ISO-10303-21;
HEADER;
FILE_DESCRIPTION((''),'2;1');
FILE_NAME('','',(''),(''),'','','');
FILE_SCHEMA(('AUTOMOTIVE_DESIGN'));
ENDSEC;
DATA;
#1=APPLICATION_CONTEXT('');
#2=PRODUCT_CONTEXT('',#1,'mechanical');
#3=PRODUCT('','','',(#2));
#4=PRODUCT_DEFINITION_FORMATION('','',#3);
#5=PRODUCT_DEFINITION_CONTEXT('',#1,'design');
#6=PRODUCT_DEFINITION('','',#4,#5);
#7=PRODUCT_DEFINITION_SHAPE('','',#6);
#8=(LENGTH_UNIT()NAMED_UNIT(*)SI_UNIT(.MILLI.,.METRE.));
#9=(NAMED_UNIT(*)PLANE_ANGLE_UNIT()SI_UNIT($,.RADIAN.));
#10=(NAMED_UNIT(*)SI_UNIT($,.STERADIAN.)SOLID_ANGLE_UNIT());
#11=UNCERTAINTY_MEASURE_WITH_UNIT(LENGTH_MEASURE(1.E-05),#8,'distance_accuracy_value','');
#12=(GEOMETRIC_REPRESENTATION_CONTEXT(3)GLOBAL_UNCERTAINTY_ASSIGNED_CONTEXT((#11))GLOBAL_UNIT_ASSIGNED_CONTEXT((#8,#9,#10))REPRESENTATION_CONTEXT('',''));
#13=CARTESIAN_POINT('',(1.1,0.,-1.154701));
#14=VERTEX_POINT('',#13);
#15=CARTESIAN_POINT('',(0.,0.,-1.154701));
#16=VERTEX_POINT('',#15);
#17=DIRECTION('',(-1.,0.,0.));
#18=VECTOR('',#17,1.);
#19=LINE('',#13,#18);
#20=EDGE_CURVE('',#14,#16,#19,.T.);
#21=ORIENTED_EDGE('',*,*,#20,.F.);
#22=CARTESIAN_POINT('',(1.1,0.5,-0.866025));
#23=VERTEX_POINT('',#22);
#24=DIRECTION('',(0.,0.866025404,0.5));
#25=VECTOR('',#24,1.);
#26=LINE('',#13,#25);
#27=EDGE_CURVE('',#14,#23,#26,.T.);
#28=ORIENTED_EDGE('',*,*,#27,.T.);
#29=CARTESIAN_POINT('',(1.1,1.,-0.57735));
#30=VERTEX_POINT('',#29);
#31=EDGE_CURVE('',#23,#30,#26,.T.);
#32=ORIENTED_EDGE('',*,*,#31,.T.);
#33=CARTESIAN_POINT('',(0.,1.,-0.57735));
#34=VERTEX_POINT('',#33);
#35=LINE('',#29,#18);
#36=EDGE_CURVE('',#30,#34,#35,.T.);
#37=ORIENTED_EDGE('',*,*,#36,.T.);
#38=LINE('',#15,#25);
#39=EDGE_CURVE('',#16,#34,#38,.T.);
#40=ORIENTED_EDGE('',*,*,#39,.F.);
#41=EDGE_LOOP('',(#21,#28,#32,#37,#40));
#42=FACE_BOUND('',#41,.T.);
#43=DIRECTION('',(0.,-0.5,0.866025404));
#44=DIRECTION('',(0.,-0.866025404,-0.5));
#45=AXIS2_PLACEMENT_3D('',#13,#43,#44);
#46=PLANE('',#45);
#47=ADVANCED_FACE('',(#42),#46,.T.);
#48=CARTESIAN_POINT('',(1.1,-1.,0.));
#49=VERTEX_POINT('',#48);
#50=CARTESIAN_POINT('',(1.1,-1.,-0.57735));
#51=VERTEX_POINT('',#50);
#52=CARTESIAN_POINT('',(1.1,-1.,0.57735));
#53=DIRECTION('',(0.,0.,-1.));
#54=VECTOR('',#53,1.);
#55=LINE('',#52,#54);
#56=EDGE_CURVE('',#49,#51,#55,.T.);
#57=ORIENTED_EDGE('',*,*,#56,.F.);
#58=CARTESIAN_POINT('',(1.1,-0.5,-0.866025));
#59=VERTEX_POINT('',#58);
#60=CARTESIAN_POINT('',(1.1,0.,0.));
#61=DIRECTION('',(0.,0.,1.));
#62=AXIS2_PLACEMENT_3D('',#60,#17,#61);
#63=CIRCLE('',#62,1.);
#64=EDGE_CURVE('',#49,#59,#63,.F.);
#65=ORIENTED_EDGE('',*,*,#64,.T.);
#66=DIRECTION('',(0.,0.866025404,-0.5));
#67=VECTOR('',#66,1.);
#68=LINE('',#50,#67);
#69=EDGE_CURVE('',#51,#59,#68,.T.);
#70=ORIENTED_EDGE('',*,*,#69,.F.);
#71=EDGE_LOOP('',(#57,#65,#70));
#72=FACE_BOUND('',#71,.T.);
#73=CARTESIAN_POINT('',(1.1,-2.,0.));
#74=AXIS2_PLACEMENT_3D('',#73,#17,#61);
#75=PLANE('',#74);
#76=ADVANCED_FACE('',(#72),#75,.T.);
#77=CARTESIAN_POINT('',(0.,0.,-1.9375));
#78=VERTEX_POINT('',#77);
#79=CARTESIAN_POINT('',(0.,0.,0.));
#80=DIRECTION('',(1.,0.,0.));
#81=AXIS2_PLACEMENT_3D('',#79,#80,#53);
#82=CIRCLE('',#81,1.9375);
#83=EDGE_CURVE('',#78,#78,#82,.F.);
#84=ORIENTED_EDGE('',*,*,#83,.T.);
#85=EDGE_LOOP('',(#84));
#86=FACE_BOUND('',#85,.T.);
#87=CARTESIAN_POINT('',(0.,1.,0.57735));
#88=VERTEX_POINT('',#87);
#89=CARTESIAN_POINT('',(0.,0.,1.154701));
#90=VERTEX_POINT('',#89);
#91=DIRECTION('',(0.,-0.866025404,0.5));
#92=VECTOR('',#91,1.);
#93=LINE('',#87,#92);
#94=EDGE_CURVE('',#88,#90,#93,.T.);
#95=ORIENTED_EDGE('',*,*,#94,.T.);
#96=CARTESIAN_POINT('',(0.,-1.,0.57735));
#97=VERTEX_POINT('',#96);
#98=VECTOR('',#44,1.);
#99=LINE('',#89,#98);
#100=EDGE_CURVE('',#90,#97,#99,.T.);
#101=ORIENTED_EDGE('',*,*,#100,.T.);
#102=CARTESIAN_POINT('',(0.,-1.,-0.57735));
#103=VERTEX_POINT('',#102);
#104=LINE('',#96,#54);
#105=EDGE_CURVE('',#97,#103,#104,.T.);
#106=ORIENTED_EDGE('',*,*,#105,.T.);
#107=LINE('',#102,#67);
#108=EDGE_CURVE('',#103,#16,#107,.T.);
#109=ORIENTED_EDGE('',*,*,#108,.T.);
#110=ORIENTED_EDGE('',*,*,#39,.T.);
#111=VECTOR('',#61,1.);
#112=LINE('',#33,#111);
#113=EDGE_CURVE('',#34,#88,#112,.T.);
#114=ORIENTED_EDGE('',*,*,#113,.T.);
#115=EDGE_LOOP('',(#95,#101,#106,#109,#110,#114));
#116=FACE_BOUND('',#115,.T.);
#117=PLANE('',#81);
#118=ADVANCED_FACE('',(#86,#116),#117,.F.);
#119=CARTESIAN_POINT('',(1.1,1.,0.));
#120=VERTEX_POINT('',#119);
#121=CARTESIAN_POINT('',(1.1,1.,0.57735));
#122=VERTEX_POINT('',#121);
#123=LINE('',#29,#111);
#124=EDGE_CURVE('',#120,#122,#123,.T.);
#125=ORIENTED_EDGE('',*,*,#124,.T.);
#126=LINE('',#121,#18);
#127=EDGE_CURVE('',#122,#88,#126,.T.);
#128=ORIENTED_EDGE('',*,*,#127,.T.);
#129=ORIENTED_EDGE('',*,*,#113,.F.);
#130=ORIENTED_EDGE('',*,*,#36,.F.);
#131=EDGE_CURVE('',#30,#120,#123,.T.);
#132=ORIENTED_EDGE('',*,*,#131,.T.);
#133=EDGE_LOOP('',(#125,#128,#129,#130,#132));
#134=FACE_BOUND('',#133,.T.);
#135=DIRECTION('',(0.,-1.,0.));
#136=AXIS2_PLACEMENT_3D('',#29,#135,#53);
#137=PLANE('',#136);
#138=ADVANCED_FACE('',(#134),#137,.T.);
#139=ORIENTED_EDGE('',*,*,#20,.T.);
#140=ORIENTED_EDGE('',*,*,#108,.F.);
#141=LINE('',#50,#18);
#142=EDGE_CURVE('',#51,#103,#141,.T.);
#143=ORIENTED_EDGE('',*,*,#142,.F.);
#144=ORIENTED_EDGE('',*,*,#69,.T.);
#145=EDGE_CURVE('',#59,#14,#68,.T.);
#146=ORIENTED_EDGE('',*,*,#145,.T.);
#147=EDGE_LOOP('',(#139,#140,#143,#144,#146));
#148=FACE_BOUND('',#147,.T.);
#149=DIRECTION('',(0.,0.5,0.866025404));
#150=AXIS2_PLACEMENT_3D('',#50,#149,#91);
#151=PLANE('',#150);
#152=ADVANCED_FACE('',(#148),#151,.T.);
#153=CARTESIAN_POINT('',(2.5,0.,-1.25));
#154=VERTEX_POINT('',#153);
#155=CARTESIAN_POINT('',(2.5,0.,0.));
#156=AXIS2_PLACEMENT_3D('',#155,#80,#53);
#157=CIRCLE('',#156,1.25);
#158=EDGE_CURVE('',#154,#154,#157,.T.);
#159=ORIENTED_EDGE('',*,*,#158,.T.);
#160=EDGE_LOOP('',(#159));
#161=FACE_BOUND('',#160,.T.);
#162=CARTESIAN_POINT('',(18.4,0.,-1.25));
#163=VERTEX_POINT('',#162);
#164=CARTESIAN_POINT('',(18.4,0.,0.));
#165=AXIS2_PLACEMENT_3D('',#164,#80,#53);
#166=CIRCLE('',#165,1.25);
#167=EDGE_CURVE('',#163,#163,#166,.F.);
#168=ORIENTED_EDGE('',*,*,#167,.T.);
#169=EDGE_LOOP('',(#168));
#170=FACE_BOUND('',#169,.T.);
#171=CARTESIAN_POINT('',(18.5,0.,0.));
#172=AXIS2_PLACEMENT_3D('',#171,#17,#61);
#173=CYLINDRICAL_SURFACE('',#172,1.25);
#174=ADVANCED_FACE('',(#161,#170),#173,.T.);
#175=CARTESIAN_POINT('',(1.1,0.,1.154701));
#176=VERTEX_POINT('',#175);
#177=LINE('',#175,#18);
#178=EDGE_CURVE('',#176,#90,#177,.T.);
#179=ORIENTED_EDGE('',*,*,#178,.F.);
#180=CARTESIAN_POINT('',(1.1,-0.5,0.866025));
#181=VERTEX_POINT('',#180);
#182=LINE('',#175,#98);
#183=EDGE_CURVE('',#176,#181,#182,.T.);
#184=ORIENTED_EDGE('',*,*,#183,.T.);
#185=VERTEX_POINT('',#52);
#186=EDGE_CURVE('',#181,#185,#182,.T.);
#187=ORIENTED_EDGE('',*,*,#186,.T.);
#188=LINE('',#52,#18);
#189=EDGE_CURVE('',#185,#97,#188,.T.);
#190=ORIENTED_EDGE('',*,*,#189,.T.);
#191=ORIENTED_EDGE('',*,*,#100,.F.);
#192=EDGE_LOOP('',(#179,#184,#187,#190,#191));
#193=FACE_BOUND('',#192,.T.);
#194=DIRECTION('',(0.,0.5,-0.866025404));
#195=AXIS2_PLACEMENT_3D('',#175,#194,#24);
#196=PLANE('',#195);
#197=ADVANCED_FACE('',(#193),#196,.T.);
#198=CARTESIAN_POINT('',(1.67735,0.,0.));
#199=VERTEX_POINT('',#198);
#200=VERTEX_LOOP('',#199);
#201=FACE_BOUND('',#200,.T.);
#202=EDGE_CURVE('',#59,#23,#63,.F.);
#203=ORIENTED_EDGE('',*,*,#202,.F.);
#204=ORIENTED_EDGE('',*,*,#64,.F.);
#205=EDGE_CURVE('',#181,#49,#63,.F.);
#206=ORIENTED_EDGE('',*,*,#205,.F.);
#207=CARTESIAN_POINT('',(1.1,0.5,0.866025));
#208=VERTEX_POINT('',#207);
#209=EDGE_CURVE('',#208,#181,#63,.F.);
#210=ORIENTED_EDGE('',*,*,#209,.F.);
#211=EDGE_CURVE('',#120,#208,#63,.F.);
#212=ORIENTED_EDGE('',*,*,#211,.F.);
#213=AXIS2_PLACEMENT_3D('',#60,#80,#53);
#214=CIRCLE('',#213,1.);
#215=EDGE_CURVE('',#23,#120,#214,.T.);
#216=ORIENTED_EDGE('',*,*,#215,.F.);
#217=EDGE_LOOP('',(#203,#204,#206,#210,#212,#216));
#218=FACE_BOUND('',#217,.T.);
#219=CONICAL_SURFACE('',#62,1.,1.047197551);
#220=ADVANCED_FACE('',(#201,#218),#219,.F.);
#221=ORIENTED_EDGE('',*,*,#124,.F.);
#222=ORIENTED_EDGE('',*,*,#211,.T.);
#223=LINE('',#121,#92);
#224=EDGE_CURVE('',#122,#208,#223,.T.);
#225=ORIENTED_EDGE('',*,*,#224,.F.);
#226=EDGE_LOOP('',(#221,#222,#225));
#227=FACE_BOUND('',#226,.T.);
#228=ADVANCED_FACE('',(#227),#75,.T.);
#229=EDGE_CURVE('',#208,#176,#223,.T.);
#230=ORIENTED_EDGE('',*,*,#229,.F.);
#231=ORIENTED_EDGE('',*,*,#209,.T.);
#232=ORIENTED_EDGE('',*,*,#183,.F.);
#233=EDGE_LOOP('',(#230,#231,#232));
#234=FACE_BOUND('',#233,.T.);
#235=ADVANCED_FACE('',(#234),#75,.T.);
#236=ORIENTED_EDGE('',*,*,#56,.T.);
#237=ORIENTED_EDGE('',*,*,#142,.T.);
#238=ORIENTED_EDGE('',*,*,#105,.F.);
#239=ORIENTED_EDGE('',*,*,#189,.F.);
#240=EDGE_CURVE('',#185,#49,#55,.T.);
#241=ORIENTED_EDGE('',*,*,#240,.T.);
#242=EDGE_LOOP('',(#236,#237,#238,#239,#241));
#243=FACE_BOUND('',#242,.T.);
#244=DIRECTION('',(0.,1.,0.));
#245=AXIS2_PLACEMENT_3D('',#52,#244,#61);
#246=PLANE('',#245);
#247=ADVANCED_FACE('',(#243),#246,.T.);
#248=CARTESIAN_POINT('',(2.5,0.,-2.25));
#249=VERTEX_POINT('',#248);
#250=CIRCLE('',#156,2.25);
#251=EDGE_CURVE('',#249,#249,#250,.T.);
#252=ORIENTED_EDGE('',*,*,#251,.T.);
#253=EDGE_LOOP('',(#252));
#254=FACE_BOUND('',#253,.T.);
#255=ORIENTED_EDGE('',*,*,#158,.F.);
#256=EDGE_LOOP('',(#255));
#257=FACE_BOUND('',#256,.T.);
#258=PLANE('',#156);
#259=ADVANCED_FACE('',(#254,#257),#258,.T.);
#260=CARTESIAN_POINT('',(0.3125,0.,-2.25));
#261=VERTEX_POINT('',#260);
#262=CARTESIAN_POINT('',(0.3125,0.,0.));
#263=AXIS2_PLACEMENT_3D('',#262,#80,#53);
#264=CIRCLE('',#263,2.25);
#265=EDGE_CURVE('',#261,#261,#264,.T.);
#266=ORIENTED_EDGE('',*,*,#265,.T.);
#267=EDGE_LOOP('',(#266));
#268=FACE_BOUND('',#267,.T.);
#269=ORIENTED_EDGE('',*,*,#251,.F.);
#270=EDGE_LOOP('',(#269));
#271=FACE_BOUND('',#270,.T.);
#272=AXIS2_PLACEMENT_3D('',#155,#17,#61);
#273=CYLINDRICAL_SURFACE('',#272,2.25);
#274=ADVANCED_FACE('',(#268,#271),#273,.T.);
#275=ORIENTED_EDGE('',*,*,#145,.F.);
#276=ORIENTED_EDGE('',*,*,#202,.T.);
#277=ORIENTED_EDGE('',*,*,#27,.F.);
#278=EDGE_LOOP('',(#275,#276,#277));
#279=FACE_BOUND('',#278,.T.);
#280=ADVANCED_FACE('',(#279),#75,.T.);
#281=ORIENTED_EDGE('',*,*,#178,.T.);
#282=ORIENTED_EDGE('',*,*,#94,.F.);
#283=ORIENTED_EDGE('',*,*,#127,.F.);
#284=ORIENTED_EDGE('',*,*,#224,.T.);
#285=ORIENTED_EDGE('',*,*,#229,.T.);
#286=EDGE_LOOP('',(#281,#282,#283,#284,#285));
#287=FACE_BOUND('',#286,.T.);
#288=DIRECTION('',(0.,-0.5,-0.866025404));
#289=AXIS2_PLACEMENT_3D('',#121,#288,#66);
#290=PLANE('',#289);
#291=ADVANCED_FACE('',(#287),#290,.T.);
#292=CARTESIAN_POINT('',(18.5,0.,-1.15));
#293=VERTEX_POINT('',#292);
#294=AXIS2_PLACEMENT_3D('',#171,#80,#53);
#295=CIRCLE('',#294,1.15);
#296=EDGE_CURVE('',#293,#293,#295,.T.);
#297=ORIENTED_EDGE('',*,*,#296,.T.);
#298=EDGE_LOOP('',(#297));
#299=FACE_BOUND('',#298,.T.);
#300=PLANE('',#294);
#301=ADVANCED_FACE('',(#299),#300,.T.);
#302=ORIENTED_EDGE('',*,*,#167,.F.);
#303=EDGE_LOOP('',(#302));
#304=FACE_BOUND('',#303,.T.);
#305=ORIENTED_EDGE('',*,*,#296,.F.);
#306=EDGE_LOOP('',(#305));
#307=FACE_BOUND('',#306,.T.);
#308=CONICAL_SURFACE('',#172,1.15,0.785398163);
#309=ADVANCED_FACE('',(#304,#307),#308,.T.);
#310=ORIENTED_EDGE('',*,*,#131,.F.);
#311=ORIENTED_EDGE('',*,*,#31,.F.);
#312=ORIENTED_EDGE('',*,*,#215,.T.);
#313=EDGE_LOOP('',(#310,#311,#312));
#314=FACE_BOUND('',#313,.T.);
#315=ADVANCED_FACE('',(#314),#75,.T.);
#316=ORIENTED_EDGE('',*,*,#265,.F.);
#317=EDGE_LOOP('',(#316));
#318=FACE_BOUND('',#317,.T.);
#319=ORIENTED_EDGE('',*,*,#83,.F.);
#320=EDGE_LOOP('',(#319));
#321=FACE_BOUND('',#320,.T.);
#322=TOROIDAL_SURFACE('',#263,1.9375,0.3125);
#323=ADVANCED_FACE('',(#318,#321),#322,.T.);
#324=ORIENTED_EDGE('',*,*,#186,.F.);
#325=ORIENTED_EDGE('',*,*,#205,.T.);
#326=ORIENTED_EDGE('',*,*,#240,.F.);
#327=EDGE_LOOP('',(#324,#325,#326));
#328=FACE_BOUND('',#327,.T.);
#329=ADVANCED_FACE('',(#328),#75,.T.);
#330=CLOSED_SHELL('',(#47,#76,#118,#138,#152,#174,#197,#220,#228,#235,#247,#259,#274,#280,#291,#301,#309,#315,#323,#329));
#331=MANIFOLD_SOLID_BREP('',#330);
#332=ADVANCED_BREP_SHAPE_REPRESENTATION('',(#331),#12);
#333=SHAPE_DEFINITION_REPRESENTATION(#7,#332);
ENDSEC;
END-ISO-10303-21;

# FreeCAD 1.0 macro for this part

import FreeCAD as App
import Part
import Sketcher
Q = App.Units.Quantity


def edges_at(feature, points):
    """Names of the edges that pass closest to the given points."""
    edges = feature.Shape.Edges
    near = lambda p: min(range(len(edges)), key=lambda i: edges[i].distToShape(Part.Vertex(*p))[0])
    return sorted({f"Edge{near(p) + 1}" for p in points})

doc = App.newDocument("Part")
body = doc.addObject("PartDesign::Body", "Body")

# Sketch on YZ plane
sketch1 = body.newObject("Sketcher::SketchObject", "Sketch")
sketch1.AttachmentSupport = (doc.getObject("YZ_Plane"), [""])
sketch1.MapMode = "FlatFace"
sketch1.addGeometry(Part.Circle(App.Vector(0, 0, 0), App.Vector(0, 0, 1), 2.2), False)
sketch1.addConstraint([
    Sketcher.Constraint("Coincident", 0, 3, -1, 1),
    Sketcher.Constraint("Diameter", 0, Q("4.5 mm")),
])
pad1 = body.newObject("PartDesign::Pad", "Pad")
pad1.Profile = sketch1
pad1.Length = 2.5

# Sketch on YZ plane
sketch2 = body.newObject("Sketcher::SketchObject", "Sketch001")
sketch2.AttachmentSupport = (doc.getObject("YZ_Plane"), [""])
sketch2.MapMode = "FlatFace"
sketch2.AttachmentOffset = App.Placement(App.Vector(0, 0, 2.5), App.Rotation())
sketch2.addGeometry(Part.Circle(App.Vector(0, 0, 0), App.Vector(0, 0, 1), 1.2), False)
sketch2.addConstraint([
    Sketcher.Constraint("Coincident", 0, 3, -1, 1),
    Sketcher.Constraint("Diameter", 0, Q("2.5 mm")),
])
pad2 = body.newObject("PartDesign::Pad", "Pad001")
pad2.Profile = sketch2
pad2.Length = 16

# Sketch on YZ plane
sketch3 = body.newObject("Sketcher::SketchObject", "Sketch002")
sketch3.AttachmentSupport = (doc.getObject("YZ_Plane"), [""])
sketch3.MapMode = "FlatFace"
sketch3.addGeometry([
    Part.LineSegment(App.Vector(0, -1.2, 0), App.Vector(1, -0.6, 0)),  # 0
    Part.LineSegment(App.Vector(1, -0.6, 0), App.Vector(1, 0.6, 0)),  # 1
    Part.LineSegment(App.Vector(1, 0.6, 0), App.Vector(0, 1.2, 0)),  # 2
    Part.LineSegment(App.Vector(0, 1.2, 0), App.Vector(-1, 0.6, 0)),  # 3
    Part.LineSegment(App.Vector(-1, 0.6, 0), App.Vector(-1, -0.6, 0)),  # 4
    Part.LineSegment(App.Vector(-1, -0.6, 0), App.Vector(0, -1.2, 0)),  # 5
], False)
sketch3.addConstraint([
    Sketcher.Constraint("Coincident", 0, 2, 1, 1),
    Sketcher.Constraint("Coincident", 1, 2, 2, 1),
    Sketcher.Constraint("Coincident", 2, 2, 3, 1),
    Sketcher.Constraint("Coincident", 3, 2, 4, 1),
    Sketcher.Constraint("Coincident", 4, 2, 5, 1),
    Sketcher.Constraint("Coincident", 5, 2, 0, 1),
    Sketcher.Constraint("Vertical", 1),
    Sketcher.Constraint("Vertical", 4),
    Sketcher.Constraint("Symmetric", 0, 2, 3, 2, -1, 1),
    Sketcher.Constraint("Symmetric", 2, 2, 5, 2, -1, 1),
    Sketcher.Constraint("PointOnObject", 2, 2, -2),
    Sketcher.Constraint("Parallel", 2, 5),
    Sketcher.Constraint("Horizontal", 1, 2, 3, 2),
    Sketcher.Constraint("Angle", 0, Q("30 deg")),
    Sketcher.Constraint("DistanceX", -1, 1, 0, 2, Q("1 mm")),
    Sketcher.Constraint("DistanceY", 1, 1, 1, 2, Q("1.154701 mm")),
])
pocket1 = body.newObject("PartDesign::Pocket", "Pocket")
pocket1.Profile = sketch3
pocket1.Length = 1.1
pocket1.Reversed = True

# Sketch on XY plane
sketch4 = body.newObject("Sketcher::SketchObject", "Sketch003")
sketch4.AttachmentSupport = (doc.getObject("XY_Plane"), [""])
sketch4.MapMode = "FlatFace"
sketch4.addGeometry([
    Part.LineSegment(App.Vector(1.1, -1, 0), App.Vector(1.7, 0, 0)),
    Part.LineSegment(App.Vector(1.7, 0, 0), App.Vector(1.1, 0, 0)),
    Part.LineSegment(App.Vector(1.1, 0, 0), App.Vector(1.1, -1, 0)),
], False)
sketch4.addConstraint([
    Sketcher.Constraint("Coincident", 0, 2, 1, 1),
    Sketcher.Constraint("Coincident", 1, 2, 2, 1),
    Sketcher.Constraint("Coincident", 2, 2, 0, 1),
    Sketcher.Constraint("Horizontal", 1),
    Sketcher.Constraint("Vertical", 2),
    Sketcher.Constraint("PointOnObject", 0, 2, -1),
    Sketcher.Constraint("DistanceY", 2, 2, 2, 1, Q("1 mm")),
    Sketcher.Constraint("Angle", 0, Q("60 deg")),
    Sketcher.Constraint("DistanceX", -1, 1, 1, 2, Q("1.1 mm")),
])
groove = body.newObject("PartDesign::Groove", "Groove")
groove.Profile = sketch4
groove.ReferenceAxis = (sketch4, ["H_Axis"])
groove.Angle = 360
doc.recompute()

fillet = body.newObject("PartDesign::Fillet", "Fillet")
fillet.Base = (groove, edges_at(groove, [(0, 0, 2.25)]))
fillet.Radius = 0.3125
doc.recompute()

chamfer = body.newObject("PartDesign::Chamfer", "Chamfer")
chamfer.Base = (fillet, edges_at(fillet, [(18.5, 0, 1.25)]))
chamfer.Size = 0.1

doc.recompute()
